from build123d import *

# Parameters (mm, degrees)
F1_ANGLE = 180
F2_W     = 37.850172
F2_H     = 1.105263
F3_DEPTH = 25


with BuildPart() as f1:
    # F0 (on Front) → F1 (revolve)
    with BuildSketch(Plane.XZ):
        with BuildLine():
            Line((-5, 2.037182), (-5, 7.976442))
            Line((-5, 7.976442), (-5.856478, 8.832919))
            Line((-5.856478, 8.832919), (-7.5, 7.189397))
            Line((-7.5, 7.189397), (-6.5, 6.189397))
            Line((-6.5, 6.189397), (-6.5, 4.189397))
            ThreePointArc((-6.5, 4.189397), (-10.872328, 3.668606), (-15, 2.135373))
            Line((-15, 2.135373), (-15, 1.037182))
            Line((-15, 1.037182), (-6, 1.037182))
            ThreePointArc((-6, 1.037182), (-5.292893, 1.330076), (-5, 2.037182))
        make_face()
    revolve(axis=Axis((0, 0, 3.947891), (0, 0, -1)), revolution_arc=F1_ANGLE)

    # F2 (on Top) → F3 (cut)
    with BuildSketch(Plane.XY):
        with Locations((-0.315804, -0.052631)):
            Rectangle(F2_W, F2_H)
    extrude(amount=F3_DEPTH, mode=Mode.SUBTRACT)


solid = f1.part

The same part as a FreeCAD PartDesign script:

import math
import FreeCAD as App
import Part
import Sketcher
Q = App.Units.Quantity


def add_polygon(sketch, points):
    """Adds a closed chain of lines whose ends are joined by coincident constraints."""
    first, n = sketch.GeometryCount, len(points)
    for a, b in zip(points, points[1:] + points[:1]):
        sketch.addGeometry(Part.LineSegment(App.Vector(*a, 0), App.Vector(*b, 0)), False)
    for i in range(n):
        sketch.addConstraint(Sketcher.Constraint("Coincident", first + i, 2, first + (i + 1) % n, 1))

doc = App.newDocument("Part")
body = doc.addObject("PartDesign::Body", "Body")

sketch1 = doc.addObject("Sketcher::SketchObject", "Sketch")
body.addObject(sketch1)
sketch1.AttachmentSupport = (doc.XZ_Plane, [""])
sketch1.MapMode = "FlatFace"
sketch1.addGeometry([
    Part.LineSegment(App.Vector(-5, 2, 0), App.Vector(-5, 8, 0)),
    Part.LineSegment(App.Vector(-5, 8, 0), App.Vector(-5.9, 8.8, 0)),
    Part.LineSegment(App.Vector(-5.9, 8.8, 0), App.Vector(-7.5, 7.2, 0)),
    Part.LineSegment(App.Vector(-7.5, 7.2, 0), App.Vector(-6.5, 6.2, 0)),
    Part.LineSegment(App.Vector(-6.5, 6.2, 0), App.Vector(-6.5, 4.2, 0)),
    Part.ArcOfCircle(Part.Circle(App.Vector(-6.5, -14.4, 0), App.Vector(0, 0, 1), 18.6), math.radians(90), math.radians(117)),
    Part.LineSegment(App.Vector(-15, 2.1, 0), App.Vector(-15, 1, 0)),
    Part.LineSegment(App.Vector(-15, 1, 0), App.Vector(-6, 1, 0)),
    Part.ArcOfCircle(Part.Circle(App.Vector(-6, 2, 0), App.Vector(0, 0, 1), 1), math.radians(-90), math.radians(0)),
], False)
sketch1.addConstraint([
    Sketcher.Constraint("Coincident", 0, 2, 1, 1),
    Sketcher.Constraint("Coincident", 1, 2, 2, 1),
    Sketcher.Constraint("Coincident", 2, 2, 3, 1),
    Sketcher.Constraint("Coincident", 3, 2, 4, 1),
    Sketcher.Constraint("Coincident", 4, 2, 5, 1),
    Sketcher.Constraint("Coincident", 5, 2, 6, 1),
    Sketcher.Constraint("Coincident", 6, 2, 7, 1),
    Sketcher.Constraint("Tangent", 7, 2, 8, 1),
    Sketcher.Constraint("Tangent", 8, 2, 0, 1),
    Sketcher.Constraint("Vertical", 0),
    Sketcher.Constraint("Vertical", 4),
    Sketcher.Constraint("Vertical", 6),
    Sketcher.Constraint("Horizontal", 7),
    Sketcher.Constraint("Perpendicular", 1, 2),
    Sketcher.Constraint("Perpendicular", 2, 3),
    Sketcher.Constraint("Radius", 8, 1.000001),
    Sketcher.Constraint("DistanceX", 7, 1, 7, 2, 9.0),
    Sketcher.Constraint("DistanceY", 4, 2, 4, 1, 2.0),
    Sketcher.Constraint("Angle", 2, Q("-135 deg")),
    Sketcher.Constraint("DistanceX", 8, 3, -1, 1, 6.000001),
    Sketcher.Constraint("DistanceX", 2, 2, 3, 2, 1.0),
    Sketcher.Constraint("DistanceX", 2, 2, -1, 1, 7.5),
    Sketcher.Constraint("DistanceX", 5, 3, 8, 3, 0.500001),
    Sketcher.Constraint("Radius", 5, 18.614432),
    Sketcher.Constraint("DistanceY", 0, 1, 0, 2, 5.93926),
    Sketcher.Constraint("DistanceY", 6, 2, 6, 1, 1.098191),
    Sketcher.Constraint("DistanceY", -1, 1, 0, 2, 7.976442),
])
revolution = doc.addObject("PartDesign::Revolution", "Revolution")
body.addObject(revolution)
revolution.Profile = sketch1
revolution.ReferenceAxis = (sketch1, ["V_Axis"])
revolution.Angle = 180
revolution.Reversed = True

sketch2 = doc.addObject("Sketcher::SketchObject", "Sketch001")
body.addObject(sketch2)
sketch2.AttachmentSupport = (doc.XY_Plane, [""])
sketch2.MapMode = "FlatFace"
add_polygon(sketch2, [(-19.2, 0.5), (-19.2, -0.6), (18.6, -0.6), (18.6, 0.5)])
sketch2.addConstraint([
    Sketcher.Constraint("Vertical", 0),
    Sketcher.Constraint("Horizontal", 1),
    Sketcher.Constraint("Vertical", 2),
    Sketcher.Constraint("Horizontal", 3),
    Sketcher.Constraint("DistanceY", -1, 1, 2, 2, 0.5),
    Sketcher.Constraint("DistanceX", 1, 1, 1, 2, 37.850172),
    Sketcher.Constraint("DistanceY", 0, 2, 0, 1, 1.105263),
    Sketcher.Constraint("DistanceX", 0, 2, -1, 1, 19.24089),
])
pocket1 = doc.addObject("PartDesign::Pocket", "Pocket")
body.addObject(pocket1)
pocket1.Profile = sketch2
pocket1.Length = 25
pocket1.Reversed = True

doc.recompute()
